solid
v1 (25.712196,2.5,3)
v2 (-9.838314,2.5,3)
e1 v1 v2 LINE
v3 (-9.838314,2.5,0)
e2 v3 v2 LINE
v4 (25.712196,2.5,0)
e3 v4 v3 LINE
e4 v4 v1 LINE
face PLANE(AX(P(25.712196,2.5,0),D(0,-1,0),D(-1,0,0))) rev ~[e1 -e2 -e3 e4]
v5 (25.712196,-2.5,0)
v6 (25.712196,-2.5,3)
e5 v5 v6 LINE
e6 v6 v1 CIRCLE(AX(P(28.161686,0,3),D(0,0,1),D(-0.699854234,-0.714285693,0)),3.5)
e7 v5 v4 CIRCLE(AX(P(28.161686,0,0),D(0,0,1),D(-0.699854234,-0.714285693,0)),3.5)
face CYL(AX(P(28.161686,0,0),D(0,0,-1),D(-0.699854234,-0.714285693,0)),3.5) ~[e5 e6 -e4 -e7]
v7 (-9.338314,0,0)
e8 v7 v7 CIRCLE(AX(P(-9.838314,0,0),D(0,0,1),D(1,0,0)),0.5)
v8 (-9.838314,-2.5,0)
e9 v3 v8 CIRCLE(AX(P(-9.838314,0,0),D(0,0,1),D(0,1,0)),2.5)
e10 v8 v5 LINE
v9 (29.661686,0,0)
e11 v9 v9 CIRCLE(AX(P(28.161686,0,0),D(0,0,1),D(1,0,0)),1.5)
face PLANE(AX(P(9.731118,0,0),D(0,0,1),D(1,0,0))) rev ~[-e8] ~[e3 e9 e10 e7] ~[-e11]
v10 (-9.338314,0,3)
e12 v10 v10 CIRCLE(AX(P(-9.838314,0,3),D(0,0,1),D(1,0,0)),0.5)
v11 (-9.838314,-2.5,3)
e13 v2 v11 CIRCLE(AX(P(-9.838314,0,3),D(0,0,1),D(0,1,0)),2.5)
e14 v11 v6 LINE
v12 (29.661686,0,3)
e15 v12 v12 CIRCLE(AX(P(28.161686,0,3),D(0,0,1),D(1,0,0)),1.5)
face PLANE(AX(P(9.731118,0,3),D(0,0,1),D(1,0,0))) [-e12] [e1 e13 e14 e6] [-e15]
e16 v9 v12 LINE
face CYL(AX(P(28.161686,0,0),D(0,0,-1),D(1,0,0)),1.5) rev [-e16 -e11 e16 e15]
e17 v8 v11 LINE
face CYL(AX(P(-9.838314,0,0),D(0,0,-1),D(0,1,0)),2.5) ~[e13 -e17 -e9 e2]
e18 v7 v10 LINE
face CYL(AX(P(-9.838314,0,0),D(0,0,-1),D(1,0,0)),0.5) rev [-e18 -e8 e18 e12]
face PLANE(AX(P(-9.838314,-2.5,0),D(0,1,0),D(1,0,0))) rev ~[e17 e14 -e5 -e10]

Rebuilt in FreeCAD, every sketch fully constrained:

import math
import FreeCAD as App
import Part
import Sketcher
from FreeCAD import Vector

doc = App.newDocument("Part")
body = doc.addObject("PartDesign::Body", "Body")

sketch1 = body.newObject("Sketcher::SketchObject", "Sketch")
sketch1.AttachmentSupport = (doc.getObject("XY_Plane"), [""])
sketch1.MapMode = "FlatFace"
sketch1.addGeometry([
    Part.ArcOfCircle(Part.Circle(Vector(28.161686, 0, 0), Vector(0, 0, 1), 3.5), math.radians(-134.41531), math.radians(134.41531)),
    Part.LineSegment(Vector(25.712196, 2.5, 0), Vector(-9.838314, 2.5, 0)),
    Part.ArcOfCircle(Part.Circle(Vector(-9.838314, 0, 0), Vector(0, 0, 1), 2.5), math.radians(90), math.radians(270)),
    Part.LineSegment(Vector(-9.838314, -2.5, 0), Vector(25.712196, -2.5, 0)),
    Part.Circle(Vector(-9.838314, 0, 0), Vector(0, 0, 1), 0.5),
    Part.Circle(Vector(28.161686, 0, 0), Vector(0, 0, 1), 1.5),
], False)
sketch1.addConstraint([
    Sketcher.Constraint("Coincident", 0, 2, 1, 1),
    Sketcher.Constraint("Tangent", 1, 2, 2, 1),
    Sketcher.Constraint("Tangent", 2, 2, 3, 1),
    Sketcher.Constraint("Coincident", 3, 2, 0, 1),
    Sketcher.Constraint("Horizontal", 1),
    Sketcher.Constraint("Horizontal", 3),
    Sketcher.Constraint("Coincident", 4, 3, 2, 3),
    Sketcher.Constraint("Coincident", 5, 3, 0, 3),
    Sketcher.Constraint("Symmetric", 0, 2, 3, 2, -1),
    Sketcher.Constraint("Diameter", 4, 1.0),
    Sketcher.Constraint("Diameter", 5, 3.0),
    Sketcher.Constraint("Radius", 0, 3.5),
    Sketcher.Constraint("Radius", 2, 2.5),
    Sketcher.Constraint("DistanceX", 2, 3, 0, 3, 38.0),
    Sketcher.Constraint("DistanceX", -1, 1, 0, 3, 28.161686),
])
pad1 = body.newObject("PartDesign::Pad", "Pad")
pad1.Profile = sketch1
pad1.Length = 3

doc.recompute()
